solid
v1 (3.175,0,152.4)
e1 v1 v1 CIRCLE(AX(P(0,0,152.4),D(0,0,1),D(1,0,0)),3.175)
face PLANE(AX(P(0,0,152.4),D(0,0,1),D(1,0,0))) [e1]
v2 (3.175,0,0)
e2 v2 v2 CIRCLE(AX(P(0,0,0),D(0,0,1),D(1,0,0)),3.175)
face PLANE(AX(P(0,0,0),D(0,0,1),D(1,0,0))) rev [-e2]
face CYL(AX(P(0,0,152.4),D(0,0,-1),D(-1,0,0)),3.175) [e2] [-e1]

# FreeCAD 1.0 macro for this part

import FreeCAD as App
import Part
import Sketcher
from FreeCAD import Vector
Q = App.Units.Quantity

doc = App.newDocument("Part")
body = doc.addObject("PartDesign::Body", "Body")

# Sketch on XY plane
sketch1 = body.newObject("Sketcher::SketchObject", "Sketch")
sketch1.AttachmentSupport = (doc.getObject("XY_Plane"), [""])
sketch1.MapMode = "FlatFace"
sketch1.addGeometry(Part.Circle(Vector(0, 0, 0), Vector(0, 0, 1), 3.2), False)
sketch1.addConstraint(Sketcher.Constraint("Coincident", 0, 3, -1, 1))
sketch1.addConstraint(Sketcher.Constraint("Diameter", 0, Q("0.25 in")))
pad1 = body.newObject("PartDesign::Pad", "Pad")
pad1.Profile = sketch1
pad1.Length = Q("6 in")

doc.recompute()
